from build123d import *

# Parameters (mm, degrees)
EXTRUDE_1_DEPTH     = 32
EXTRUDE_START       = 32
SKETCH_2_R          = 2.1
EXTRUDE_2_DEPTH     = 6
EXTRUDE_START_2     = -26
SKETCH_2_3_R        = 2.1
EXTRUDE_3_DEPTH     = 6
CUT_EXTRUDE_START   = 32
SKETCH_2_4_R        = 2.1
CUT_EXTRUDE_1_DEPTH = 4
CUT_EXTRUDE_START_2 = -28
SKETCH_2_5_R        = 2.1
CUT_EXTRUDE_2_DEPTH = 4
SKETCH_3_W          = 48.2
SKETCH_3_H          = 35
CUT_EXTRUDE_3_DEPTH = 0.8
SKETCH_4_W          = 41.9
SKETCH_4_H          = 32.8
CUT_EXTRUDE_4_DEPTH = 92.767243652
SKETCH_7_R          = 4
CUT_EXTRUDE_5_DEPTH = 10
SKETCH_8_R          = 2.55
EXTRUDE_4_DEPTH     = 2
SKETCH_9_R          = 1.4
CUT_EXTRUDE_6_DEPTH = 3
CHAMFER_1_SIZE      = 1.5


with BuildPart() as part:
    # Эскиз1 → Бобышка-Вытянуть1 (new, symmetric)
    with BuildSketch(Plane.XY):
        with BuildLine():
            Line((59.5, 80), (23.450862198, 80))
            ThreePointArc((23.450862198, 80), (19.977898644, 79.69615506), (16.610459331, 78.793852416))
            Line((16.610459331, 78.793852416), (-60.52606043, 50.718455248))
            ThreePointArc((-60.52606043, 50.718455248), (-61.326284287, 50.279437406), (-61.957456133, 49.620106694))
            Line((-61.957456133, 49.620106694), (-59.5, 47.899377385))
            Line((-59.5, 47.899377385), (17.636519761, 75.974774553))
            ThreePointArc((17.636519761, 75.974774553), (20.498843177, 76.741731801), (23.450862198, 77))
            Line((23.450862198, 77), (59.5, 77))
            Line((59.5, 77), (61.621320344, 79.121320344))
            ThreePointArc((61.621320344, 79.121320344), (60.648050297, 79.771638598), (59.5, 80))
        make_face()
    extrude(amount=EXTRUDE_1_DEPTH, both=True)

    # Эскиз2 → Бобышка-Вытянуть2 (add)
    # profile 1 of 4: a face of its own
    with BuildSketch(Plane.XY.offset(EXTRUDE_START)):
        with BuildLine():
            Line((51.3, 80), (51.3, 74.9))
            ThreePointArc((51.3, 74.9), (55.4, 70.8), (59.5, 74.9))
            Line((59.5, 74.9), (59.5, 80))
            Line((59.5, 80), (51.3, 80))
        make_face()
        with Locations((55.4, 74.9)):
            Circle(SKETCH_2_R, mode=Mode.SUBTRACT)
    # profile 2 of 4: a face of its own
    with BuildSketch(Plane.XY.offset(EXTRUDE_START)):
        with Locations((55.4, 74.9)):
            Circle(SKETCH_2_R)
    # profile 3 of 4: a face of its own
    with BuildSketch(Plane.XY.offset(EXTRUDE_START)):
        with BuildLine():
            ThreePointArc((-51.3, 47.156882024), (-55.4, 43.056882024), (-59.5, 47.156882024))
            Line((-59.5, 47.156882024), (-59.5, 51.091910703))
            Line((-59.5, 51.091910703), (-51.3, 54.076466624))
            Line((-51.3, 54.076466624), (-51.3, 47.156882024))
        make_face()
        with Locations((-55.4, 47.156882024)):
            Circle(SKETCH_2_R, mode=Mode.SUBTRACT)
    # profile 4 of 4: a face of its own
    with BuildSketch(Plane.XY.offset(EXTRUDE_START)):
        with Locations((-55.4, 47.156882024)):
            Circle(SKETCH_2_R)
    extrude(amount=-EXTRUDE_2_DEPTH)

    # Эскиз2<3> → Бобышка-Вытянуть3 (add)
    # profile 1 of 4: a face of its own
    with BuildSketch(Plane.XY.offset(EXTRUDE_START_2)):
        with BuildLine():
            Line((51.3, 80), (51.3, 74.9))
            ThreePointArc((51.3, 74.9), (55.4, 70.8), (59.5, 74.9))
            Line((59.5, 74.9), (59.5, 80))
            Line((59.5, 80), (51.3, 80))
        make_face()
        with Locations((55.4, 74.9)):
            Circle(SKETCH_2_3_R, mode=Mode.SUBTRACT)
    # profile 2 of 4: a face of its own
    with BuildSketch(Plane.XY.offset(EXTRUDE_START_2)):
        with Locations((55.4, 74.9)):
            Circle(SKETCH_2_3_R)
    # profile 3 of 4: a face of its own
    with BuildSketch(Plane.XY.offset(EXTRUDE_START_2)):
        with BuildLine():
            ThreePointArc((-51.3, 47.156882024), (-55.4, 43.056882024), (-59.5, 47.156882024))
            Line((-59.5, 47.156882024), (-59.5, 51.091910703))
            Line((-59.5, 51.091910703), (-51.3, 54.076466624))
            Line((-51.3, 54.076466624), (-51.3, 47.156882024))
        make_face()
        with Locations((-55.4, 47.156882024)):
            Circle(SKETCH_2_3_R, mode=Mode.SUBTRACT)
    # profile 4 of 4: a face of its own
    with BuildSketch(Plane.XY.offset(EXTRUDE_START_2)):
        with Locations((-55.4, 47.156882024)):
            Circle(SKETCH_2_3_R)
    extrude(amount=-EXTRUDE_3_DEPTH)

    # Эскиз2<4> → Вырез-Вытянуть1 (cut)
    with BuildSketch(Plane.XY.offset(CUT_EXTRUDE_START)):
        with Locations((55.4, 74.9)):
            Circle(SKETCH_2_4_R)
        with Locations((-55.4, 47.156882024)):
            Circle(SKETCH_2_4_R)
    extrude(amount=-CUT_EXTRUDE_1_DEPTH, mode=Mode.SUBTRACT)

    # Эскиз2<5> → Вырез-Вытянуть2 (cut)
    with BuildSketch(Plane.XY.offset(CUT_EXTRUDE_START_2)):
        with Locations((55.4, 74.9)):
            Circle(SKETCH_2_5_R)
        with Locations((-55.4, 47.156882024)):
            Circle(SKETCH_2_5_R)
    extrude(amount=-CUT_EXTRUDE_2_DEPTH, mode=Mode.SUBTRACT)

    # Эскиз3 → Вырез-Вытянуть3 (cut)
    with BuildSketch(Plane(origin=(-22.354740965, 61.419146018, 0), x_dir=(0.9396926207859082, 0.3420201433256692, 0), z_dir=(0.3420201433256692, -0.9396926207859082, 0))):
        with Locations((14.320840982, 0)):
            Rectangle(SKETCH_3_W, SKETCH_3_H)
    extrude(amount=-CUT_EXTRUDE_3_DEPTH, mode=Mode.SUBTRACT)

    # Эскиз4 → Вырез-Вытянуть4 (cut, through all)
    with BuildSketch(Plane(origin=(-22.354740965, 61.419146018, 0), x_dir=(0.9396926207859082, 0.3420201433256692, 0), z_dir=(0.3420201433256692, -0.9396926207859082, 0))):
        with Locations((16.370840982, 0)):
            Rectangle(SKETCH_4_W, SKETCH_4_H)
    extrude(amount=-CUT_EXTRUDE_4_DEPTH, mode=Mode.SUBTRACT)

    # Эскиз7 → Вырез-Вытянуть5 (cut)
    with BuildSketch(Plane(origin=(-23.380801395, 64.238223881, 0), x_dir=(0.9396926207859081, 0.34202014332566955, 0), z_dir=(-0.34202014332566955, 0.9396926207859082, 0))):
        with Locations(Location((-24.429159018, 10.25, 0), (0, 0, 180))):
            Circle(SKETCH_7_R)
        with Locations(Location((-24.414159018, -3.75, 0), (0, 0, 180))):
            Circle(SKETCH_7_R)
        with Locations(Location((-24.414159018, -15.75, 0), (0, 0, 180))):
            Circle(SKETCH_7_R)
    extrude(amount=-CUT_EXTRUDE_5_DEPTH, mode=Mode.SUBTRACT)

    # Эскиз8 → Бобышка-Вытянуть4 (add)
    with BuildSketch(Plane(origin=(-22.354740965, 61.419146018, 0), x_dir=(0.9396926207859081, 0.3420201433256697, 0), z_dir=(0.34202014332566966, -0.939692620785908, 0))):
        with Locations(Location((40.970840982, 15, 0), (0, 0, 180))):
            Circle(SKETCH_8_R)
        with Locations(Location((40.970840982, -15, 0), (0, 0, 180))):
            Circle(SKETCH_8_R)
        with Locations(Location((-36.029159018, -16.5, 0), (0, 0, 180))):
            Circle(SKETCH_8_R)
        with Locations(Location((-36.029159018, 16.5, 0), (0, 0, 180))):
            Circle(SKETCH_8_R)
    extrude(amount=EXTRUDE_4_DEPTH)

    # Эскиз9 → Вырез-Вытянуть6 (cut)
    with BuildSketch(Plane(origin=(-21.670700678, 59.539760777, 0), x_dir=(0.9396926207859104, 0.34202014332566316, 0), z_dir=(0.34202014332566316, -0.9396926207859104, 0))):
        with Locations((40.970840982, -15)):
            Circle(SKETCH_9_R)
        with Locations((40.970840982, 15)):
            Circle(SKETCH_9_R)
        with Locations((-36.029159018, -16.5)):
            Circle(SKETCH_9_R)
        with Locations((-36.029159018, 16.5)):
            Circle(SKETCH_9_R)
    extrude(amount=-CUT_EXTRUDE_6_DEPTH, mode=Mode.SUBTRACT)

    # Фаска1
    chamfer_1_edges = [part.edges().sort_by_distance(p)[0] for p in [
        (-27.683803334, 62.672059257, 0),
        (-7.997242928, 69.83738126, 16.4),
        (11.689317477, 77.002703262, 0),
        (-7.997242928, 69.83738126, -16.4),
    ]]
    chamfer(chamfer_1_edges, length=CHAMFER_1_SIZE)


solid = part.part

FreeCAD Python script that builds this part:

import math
import FreeCAD as App
import Part
import Sketcher

V = App.Vector
Q = App.Units.Quantity


def edges_at(feature, points):
    """Names of the edges that pass closest to the given points."""
    edges = feature.Shape.Edges
    near = lambda p: min(range(len(edges)), key=lambda i: edges[i].distToShape(Part.Vertex(*p))[0])
    return sorted({f"Edge{near(p) + 1}" for p in points})

doc = App.newDocument("Part")
params = doc.addObject("Spreadsheet::Sheet", "Params")
for row, (alias, value) in enumerate([
    ("sketch1_radius", "20 mm"),
    ("sketch1_radius2", "3 mm"),
    ("pad1_length", "64 mm"),
    ("sketch2_radius", "4.1 mm"),
    ("sketch2_height", "5.1 mm"),
    ("pad2_length", "6 mm"),
    ("sketch3_radius", "4.1 mm"),
    ("sketch3_height", "5.1 mm"),
    ("pad3_length", "6 mm"),
    ("sketch4_diameter", "4.2 mm"),
    ("pocket1_length", "4 mm"),
    ("sketch5_diameter", "4.2 mm"),
    ("pocket2_length", "4 mm"),
    ("sketch6_height", "35 mm"),
    ("sketch6_width", "48.2 mm"),
    ("pocket3_length", "0.8 mm"),
    ("sketch7_width", "41.9 mm"),
    ("sketch7_height", "32.8 mm"),
    ("sketch8_diameter", "8 mm"),
    ("pocket5_length", "10 mm"),
    ("sketch9_diameter", "5.1 mm"),
    ("pad4_length", "2 mm"),
    ("sketch10_diameter", "2.8 mm"),
    ("pocket6_length", "3 mm"),
    ("chamfer_size", "1.5 mm"),
], start=1):
    params.set(f"A{row}", alias)
    params.set(f"B{row}", "=" + value)
    params.setAlias(f"B{row}", alias)

body = doc.addObject("PartDesign::Body", "Body")

# Sketch on XY plane
sketch1 = body.newObject("Sketcher::SketchObject", "Sketch")
sketch1.AttachmentSupport = (doc.getObject("XY_Plane"), [""])
sketch1.MapMode = "FlatFace"
sketch1.addGeometry(Part.LineSegment(V(59.5, 80, 0), V(23.5, 80, 0)), False)
sketch1.addGeometry(Part.ArcOfCircle(Part.Circle(V(23.5, 60, 0), V(0, 0, 1), 20), math.radians(90), math.radians(110)), False)
sketch1.addGeometry(Part.LineSegment(V(16.6, 78.8, 0), V(-60.5, 50.7, 0)), False)
sketch1.addGeometry(Part.ArcOfCircle(Part.Circle(V(-59.5, 47.9, 0), V(0, 0, 1), 3), math.radians(110), math.radians(145)), False)
sketch1.addGeometry(Part.LineSegment(V(-62, 49.6, 0), V(-59.5, 47.9, 0)), False)
sketch1.addGeometry(Part.LineSegment(V(-59.5, 47.9, 0), V(17.6, 76, 0)), False)
sketch1.addGeometry(Part.ArcOfCircle(Part.Circle(V(23.5, 60, 0), V(0, 0, 1), 17), math.radians(90), math.radians(110)), False)
sketch1.addGeometry(Part.LineSegment(V(23.5, 77, 0), V(59.5, 77, 0)), False)
sketch1.addGeometry(Part.LineSegment(V(59.5, 77, 0), V(61.6, 79.1, 0)), False)
sketch1.addGeometry(Part.ArcOfCircle(Part.Circle(V(59.5, 77, 0), V(0, 0, 1), 3), math.radians(45), math.radians(90)), False)
sketch1.addConstraint(Sketcher.Constraint("Tangent", 0, 2, 1, 1))
sketch1.addConstraint(Sketcher.Constraint("Tangent", 1, 2, 2, 1))
sketch1.addConstraint(Sketcher.Constraint("Tangent", 2, 2, 3, 1))
sketch1.addConstraint(Sketcher.Constraint("Coincident", 3, 2, 4, 1))
sketch1.addConstraint(Sketcher.Constraint("Coincident", 4, 2, 5, 1))
sketch1.addConstraint(Sketcher.Constraint("Tangent", 5, 2, 6, 2))
sketch1.addConstraint(Sketcher.Constraint("Tangent", 6, 1, 7, 1))
sketch1.addConstraint(Sketcher.Constraint("Coincident", 7, 2, 8, 1))
sketch1.addConstraint(Sketcher.Constraint("Coincident", 8, 2, 9, 1))
sketch1.addConstraint(Sketcher.Constraint("Tangent", 9, 2, 0, 1))
sketch1.addConstraint(Sketcher.Constraint("Horizontal", 0))
sketch1.addConstraint(Sketcher.Constraint("Horizontal", 7))
sketch1.addConstraint(Sketcher.Constraint("Coincident", 6, 3, 1, 3))
sketch1.addConstraint(Sketcher.Constraint("Coincident", 4, 2, 3, 3))
sketch1.addConstraint(Sketcher.Constraint("Coincident", 7, 2, 9, 3))
sketch1.addConstraint(Sketcher.Constraint("Equal", 3, 9))
sketch1.addConstraint(Sketcher.Constraint("Radius", 1, 20.0))
sketch1.addConstraint(Sketcher.Constraint("Radius", 3, 3.0))
sketch1.addConstraint(Sketcher.Constraint("Angle", 2, Q("-160 deg")))
sketch1.addConstraint(Sketcher.Constraint("Angle", 4, Q("-35 deg")))
sketch1.addConstraint(Sketcher.Constraint("Angle", 8, Q("45 deg")))
sketch1.addConstraint(Sketcher.Constraint("DistanceY", -1, 1, 1, 3, 60.0))
sketch1.addConstraint(Sketcher.Constraint("DistanceX", 3, 3, 9, 3, 119.0))
sketch1.addConstraint(Sketcher.Constraint("DistanceX", 3, 3, -1, 1, 59.5))
sketch1.addConstraint(Sketcher.Constraint("Distance", 2, 82.08697))
sketch1.setExpression("Constraints[16]", "Params.sketch1_radius")
sketch1.setExpression("Constraints[17]", "Params.sketch1_radius2")
pad1 = body.newObject("PartDesign::Pad", "Pad")
pad1.Profile = sketch1
pad1.setExpression("Length", "Params.pad1_length")
pad1.Midplane = True

# Sketch on XY plane
sketch2 = body.newObject("Sketcher::SketchObject", "Sketch001")
sketch2.AttachmentSupport = (doc.getObject("XY_Plane"), [""])
sketch2.MapMode = "FlatFace"
sketch2.AttachmentOffset = App.Placement(V(0, 0, 32), App.Rotation())
sketch2.addGeometry(Part.LineSegment(V(51.3, 80, 0), V(51.3, 74.9, 0)), False)
sketch2.addGeometry(Part.ArcOfCircle(Part.Circle(V(55.4, 74.9, 0), V(0, 0, 1), 4.1), math.radians(180), math.radians(360)), False)
sketch2.addGeometry(Part.LineSegment(V(59.5, 74.9, 0), V(59.5, 80, 0)), False)
sketch2.addGeometry(Part.LineSegment(V(59.5, 80, 0), V(51.3, 80, 0)), False)
sketch2.addGeometry(Part.ArcOfCircle(Part.Circle(V(-55.4, 47.2, 0), V(0, 0, 1), 4.1), math.radians(180), math.radians(360)), False)
sketch2.addGeometry(Part.LineSegment(V(-51.3, 47.2, 0), V(-51.3, 54.1, 0)), False)
sketch2.addGeometry(Part.LineSegment(V(-51.3, 54.1, 0), V(-59.5, 51.1, 0)), False)
sketch2.addGeometry(Part.LineSegment(V(-59.5, 51.1, 0), V(-59.5, 47.2, 0)), False)
sketch2.addConstraint(Sketcher.Constraint("Tangent", 0, 2, 1, 1))
sketch2.addConstraint(Sketcher.Constraint("Tangent", 1, 2, 2, 1))
sketch2.addConstraint(Sketcher.Constraint("Coincident", 2, 2, 3, 1))
sketch2.addConstraint(Sketcher.Constraint("Coincident", 3, 2, 0, 1))
sketch2.addConstraint(Sketcher.Constraint("Tangent", 4, 2, 5, 1))
sketch2.addConstraint(Sketcher.Constraint("Coincident", 5, 2, 6, 1))
sketch2.addConstraint(Sketcher.Constraint("Coincident", 6, 2, 7, 1))
sketch2.addConstraint(Sketcher.Constraint("Tangent", 7, 2, 4, 1))
sketch2.addConstraint(Sketcher.Constraint("Vertical", 0))
sketch2.addConstraint(Sketcher.Constraint("Vertical", 2))
sketch2.addConstraint(Sketcher.Constraint("Horizontal", 3))
sketch2.addConstraint(Sketcher.Constraint("Vertical", 5))
sketch2.addConstraint(Sketcher.Constraint("Vertical", 7))
sketch2.addConstraint(Sketcher.Constraint("Equal", 1, 4))
sketch2.addConstraint(Sketcher.Constraint("Radius", 1, 4.1))
sketch2.addConstraint(Sketcher.Constraint("Angle", 6, Q("-160 deg")))
sketch2.addConstraint(Sketcher.Constraint("DistanceY", 0, 2, 0, 1, 5.1))
sketch2.addConstraint(Sketcher.Constraint("DistanceY", -1, 1, 2, 2, 80.0))
sketch2.addConstraint(Sketcher.Constraint("DistanceX", -1, 1, 1, 3, 55.4))
sketch2.addConstraint(Sketcher.Constraint("DistanceX", 4, 3, -1, 1, 55.4))
sketch2.addConstraint(Sketcher.Constraint("DistanceY", 7, 2, 7, 1, 3.935029))
sketch2.addConstraint(Sketcher.Constraint("DistanceY", -1, 1, 6, 2, 51.091911))
sketch2.setExpression("Constraints[14]", "Params.sketch2_radius")
sketch2.setExpression("Constraints[16]", "Params.sketch2_height")
pad2 = body.newObject("PartDesign::Pad", "Pad001")
pad2.Profile = sketch2
pad2.setExpression("Length", "Params.pad2_length")
pad2.Reversed = True

# Sketch on XY plane
sketch3 = body.newObject("Sketcher::SketchObject", "Sketch002")
sketch3.AttachmentSupport = (doc.getObject("XY_Plane"), [""])
sketch3.MapMode = "FlatFace"
sketch3.AttachmentOffset = App.Placement(V(0, 0, -26), App.Rotation())
sketch3.addGeometry(Part.LineSegment(V(51.3, 80, 0), V(51.3, 74.9, 0)), False)
sketch3.addGeometry(Part.ArcOfCircle(Part.Circle(V(55.4, 74.9, 0), V(0, 0, 1), 4.1), math.radians(180), math.radians(360)), False)
sketch3.addGeometry(Part.LineSegment(V(59.5, 74.9, 0), V(59.5, 80, 0)), False)
sketch3.addGeometry(Part.LineSegment(V(59.5, 80, 0), V(51.3, 80, 0)), False)
sketch3.addGeometry(Part.ArcOfCircle(Part.Circle(V(-55.4, 47.2, 0), V(0, 0, 1), 4.1), math.radians(180), math.radians(360)), False)
sketch3.addGeometry(Part.LineSegment(V(-51.3, 47.2, 0), V(-51.3, 54.1, 0)), False)
sketch3.addGeometry(Part.LineSegment(V(-51.3, 54.1, 0), V(-59.5, 51.1, 0)), False)
sketch3.addGeometry(Part.LineSegment(V(-59.5, 51.1, 0), V(-59.5, 47.2, 0)), False)
sketch3.addConstraint(Sketcher.Constraint("Tangent", 0, 2, 1, 1))
sketch3.addConstraint(Sketcher.Constraint("Tangent", 1, 2, 2, 1))
sketch3.addConstraint(Sketcher.Constraint("Coincident", 2, 2, 3, 1))
sketch3.addConstraint(Sketcher.Constraint("Coincident", 3, 2, 0, 1))
sketch3.addConstraint(Sketcher.Constraint("Tangent", 4, 2, 5, 1))
sketch3.addConstraint(Sketcher.Constraint("Coincident", 5, 2, 6, 1))
sketch3.addConstraint(Sketcher.Constraint("Coincident", 6, 2, 7, 1))
sketch3.addConstraint(Sketcher.Constraint("Tangent", 7, 2, 4, 1))
sketch3.addConstraint(Sketcher.Constraint("Vertical", 0))
sketch3.addConstraint(Sketcher.Constraint("Vertical", 2))
sketch3.addConstraint(Sketcher.Constraint("Horizontal", 3))
sketch3.addConstraint(Sketcher.Constraint("Vertical", 5))
sketch3.addConstraint(Sketcher.Constraint("Vertical", 7))
sketch3.addConstraint(Sketcher.Constraint("Equal", 1, 4))
sketch3.addConstraint(Sketcher.Constraint("Radius", 1, 4.1))
sketch3.addConstraint(Sketcher.Constraint("Angle", 6, Q("-160 deg")))
sketch3.addConstraint(Sketcher.Constraint("DistanceY", 0, 2, 0, 1, 5.1))
sketch3.addConstraint(Sketcher.Constraint("DistanceY", -1, 1, 2, 2, 80.0))
sketch3.addConstraint(Sketcher.Constraint("DistanceX", -1, 1, 1, 3, 55.4))
sketch3.addConstraint(Sketcher.Constraint("DistanceX", 4, 3, -1, 1, 55.4))
sketch3.addConstraint(Sketcher.Constraint("DistanceY", 7, 2, 7, 1, 3.935029))
sketch3.addConstraint(Sketcher.Constraint("DistanceY", -1, 1, 6, 2, 51.091911))
sketch3.setExpression("Constraints[14]", "Params.sketch3_radius")
sketch3.setExpression("Constraints[16]", "Params.sketch3_height")
pad3 = body.newObject("PartDesign::Pad", "Pad002")
pad3.Profile = sketch3
pad3.setExpression("Length", "Params.pad3_length")
pad3.Reversed = True

# Sketch on XY plane
sketch4 = body.newObject("Sketcher::SketchObject", "Sketch003")
sketch4.AttachmentSupport = (doc.getObject("XY_Plane"), [""])
sketch4.MapMode = "FlatFace"
sketch4.AttachmentOffset = App.Placement(V(0, 0, 32), App.Rotation())
sketch4.addGeometry(Part.Circle(V(55.4, 74.9, 0), V(0, 0, 1), 2.1), False)
sketch4.addGeometry(Part.Circle(V(-55.4, 47.2, 0), V(0, 0, 1), 2.1), False)
sketch4.addConstraint(Sketcher.Constraint("Equal", 0, 1))
sketch4.addConstraint(Sketcher.Constraint("Diameter", 0, 4.2))
sketch4.addConstraint(Sketcher.Constraint("DistanceX", -1, 1, 0, 3, 55.4))
sketch4.addConstraint(Sketcher.Constraint("DistanceY", -1, 1, 0, 3, 74.9))
sketch4.addConstraint(Sketcher.Constraint("DistanceX", 1, 3, -1, 1, 55.4))
sketch4.addConstraint(Sketcher.Constraint("DistanceY", -1, 1, 1, 3, 47.156882))
sketch4.setExpression("Constraints[1]", "Params.sketch4_diameter")
pocket1 = body.newObject("PartDesign::Pocket", "Pocket")
pocket1.Profile = sketch4
pocket1.setExpression("Length", "Params.pocket1_length")

# Sketch on XY plane
sketch5 = body.newObject("Sketcher::SketchObject", "Sketch004")
sketch5.AttachmentSupport = (doc.getObject("XY_Plane"), [""])
sketch5.MapMode = "FlatFace"
sketch5.AttachmentOffset = App.Placement(V(0, 0, -28), App.Rotation())
sketch5.addGeometry(Part.Circle(V(55.4, 74.9, 0), V(0, 0, 1), 2.1), False)
sketch5.addGeometry(Part.Circle(V(-55.4, 47.2, 0), V(0, 0, 1), 2.1), False)
sketch5.addConstraint(Sketcher.Constraint("Equal", 0, 1))
sketch5.addConstraint(Sketcher.Constraint("Diameter", 0, 4.2))
sketch5.addConstraint(Sketcher.Constraint("DistanceX", -1, 1, 0, 3, 55.4))
sketch5.addConstraint(Sketcher.Constraint("DistanceY", -1, 1, 0, 3, 74.9))
sketch5.addConstraint(Sketcher.Constraint("DistanceX", 1, 3, -1, 1, 55.4))
sketch5.addConstraint(Sketcher.Constraint("DistanceY", -1, 1, 1, 3, 47.156882))
sketch5.setExpression("Constraints[1]", "Params.sketch5_diameter")
pocket2 = body.newObject("PartDesign::Pocket", "Pocket001")
pocket2.Profile = sketch5
pocket2.setExpression("Length", "Params.pocket2_length")

# Sketch on an angled plane
sketch6 = body.newObject("Sketcher::SketchObject", "Sketch005")
sketch6.Placement = App.Placement(V(-22.354741, 61.419146, 0), App.Rotation(V(0.939692621, 0.342020143, 0), V(0, 0, 1), V(0.342020143, -0.939692621, 0), "ZXY"))
sketch6.addGeometry(Part.LineSegment(V(-10, 18, 0), V(-10, -18, 0)), False)
sketch6.addGeometry(Part.LineSegment(V(-10, -18, 0), V(38, -18, 0)), False)
sketch6.addGeometry(Part.LineSegment(V(38, -18, 0), V(38, 18, 0)), False)
sketch6.addGeometry(Part.LineSegment(V(38, 18, 0), V(-10, 18, 0)), False)
sketch6.addConstraint(Sketcher.Constraint("Coincident", 0, 2, 1, 1))
sketch6.addConstraint(Sketcher.Constraint("Coincident", 1, 2, 2, 1))
sketch6.addConstraint(Sketcher.Constraint("Coincident", 2, 2, 3, 1))
sketch6.addConstraint(Sketcher.Constraint("Coincident", 3, 2, 0, 1))
sketch6.addConstraint(Sketcher.Constraint("Vertical", 0))
sketch6.addConstraint(Sketcher.Constraint("Horizontal", 1))
sketch6.addConstraint(Sketcher.Constraint("Vertical", 2))
sketch6.addConstraint(Sketcher.Constraint("Horizontal", 3))
sketch6.addConstraint(Sketcher.Constraint("DistanceY", 0, 2, 0, 1, 35.0))
sketch6.addConstraint(Sketcher.Constraint("DistanceX", 1, 1, 1, 2, 48.2))
sketch6.addConstraint(Sketcher.Constraint("DistanceY", 0, 2, -1, 1, 17.5))
sketch6.addConstraint(Sketcher.Constraint("DistanceX", 0, 2, -1, 1, 9.779159))
sketch6.setExpression("Constraints[8]", "Params.sketch6_height")
sketch6.setExpression("Constraints[9]", "Params.sketch6_width")
pocket3 = body.newObject("PartDesign::Pocket", "Pocket002")
pocket3.Profile = sketch6
pocket3.setExpression("Length", "Params.pocket3_length")

# Sketch on an angled plane
sketch7 = body.newObject("Sketcher::SketchObject", "Sketch006")
sketch7.Placement = App.Placement(V(-22.354741, 61.419146, 0), App.Rotation(V(0.939692621, 0.342020143, 0), V(0, 0, 1), V(0.342020143, -0.939692621, 0), "ZXY"))
sketch7.addGeometry(Part.LineSegment(V(-5, 16, 0), V(-5, -16, 0)), False)
sketch7.addGeometry(Part.LineSegment(V(-5, -16, 0), V(37, -16, 0)), False)
sketch7.addGeometry(Part.LineSegment(V(37, -16, 0), V(37, 16, 0)), False)
sketch7.addGeometry(Part.LineSegment(V(37, 16, 0), V(-5, 16, 0)), False)
sketch7.addConstraint(Sketcher.Constraint("Coincident", 0, 2, 1, 1))
sketch7.addConstraint(Sketcher.Constraint("Coincident", 1, 2, 2, 1))
sketch7.addConstraint(Sketcher.Constraint("Coincident", 2, 2, 3, 1))
sketch7.addConstraint(Sketcher.Constraint("Coincident", 3, 2, 0, 1))
sketch7.addConstraint(Sketcher.Constraint("Vertical", 0))
sketch7.addConstraint(Sketcher.Constraint("Horizontal", 1))
sketch7.addConstraint(Sketcher.Constraint("Vertical", 2))
sketch7.addConstraint(Sketcher.Constraint("Horizontal", 3))
sketch7.addConstraint(Sketcher.Constraint("DistanceX", 1, 1, 1, 2, 41.9))
sketch7.addConstraint(Sketcher.Constraint("DistanceY", 0, 2, 0, 1, 32.8))
sketch7.addConstraint(Sketcher.Constraint("DistanceY", 0, 2, -1, 1, 16.4))
sketch7.addConstraint(Sketcher.Constraint("DistanceX", 0, 2, -1, 1, 4.579159))
sketch7.setExpression("Constraints[8]", "Params.sketch7_width")
sketch7.setExpression("Constraints[9]", "Params.sketch7_height")
pocket4 = body.newObject("PartDesign::Pocket", "Pocket003")
pocket4.Profile = sketch7
pocket4.Type = "ThroughAll"

# Sketch on an angled plane
sketch8 = body.newObject("Sketcher::SketchObject", "Sketch007")
sketch8.Placement = App.Placement(V(-23.380801, 64.238224, 0), App.Rotation(V(0.939692621, 0.342020143, 0), V(0, 0, -1), V(-0.342020143, 0.939692621, 0), "ZXY"))
sketch8.addGeometry(Part.Circle(V(-24.4, 10.3, 0), V(0, 0, 1), 4), False)
sketch8.addGeometry(Part.Circle(V(-24.4, -3.8, 0), V(0, 0, 1), 4), False)
sketch8.addGeometry(Part.Circle(V(-24.4, -15.8, 0), V(0, 0, 1), 4), False)
sketch8.addConstraint(Sketcher.Constraint("Equal", 0, 1))
sketch8.addConstraint(Sketcher.Constraint("Equal", 1, 2))
sketch8.addConstraint(Sketcher.Constraint("Vertical", 1, 3, 2, 3))
sketch8.addConstraint(Sketcher.Constraint("Diameter", 0, 8.0))
sketch8.addConstraint(Sketcher.Constraint("DistanceY", 1, 3, 0, 3, 14.0))
sketch8.addConstraint(Sketcher.Constraint("DistanceY", 2, 3, 1, 3, 12.0))
sketch8.addConstraint(Sketcher.Constraint("DistanceY", -1, 1, 0, 3, 10.25))
sketch8.addConstraint(Sketcher.Constraint("DistanceX", 0, 3, 1, 3, 0.015))
sketch8.addConstraint(Sketcher.Constraint("DistanceX", 0, 3, -1, 1, 24.429159))
sketch8.setExpression("Constraints[3]", "Params.sketch8_diameter")
pocket5 = body.newObject("PartDesign::Pocket", "Pocket004")
pocket5.Profile = sketch8
pocket5.setExpression("Length", "Params.pocket5_length")

# Sketch on an angled plane
sketch9 = body.newObject("Sketcher::SketchObject", "Sketch008")
sketch9.Placement = App.Placement(V(-22.354741, 61.419146, 0), App.Rotation(V(0.939692621, 0.342020143, 0), V(0, 0, 1), V(0.342020143, -0.939692621, 0), "ZXY"))
sketch9.addGeometry(Part.Circle(V(41, 15, 0), V(0, 0, 1), 2.5), False)
sketch9.addGeometry(Part.Circle(V(41, -15, 0), V(0, 0, 1), 2.5), False)
sketch9.addGeometry(Part.Circle(V(-36, -16.5, 0), V(0, 0, 1), 2.5), False)
sketch9.addGeometry(Part.Circle(V(-36, 16.5, 0), V(0, 0, 1), 2.5), False)
sketch9.addConstraint(Sketcher.Constraint("Equal", 0, 1))
sketch9.addConstraint(Sketcher.Constraint("Equal", 1, 2))
sketch9.addConstraint(Sketcher.Constraint("Equal", 2, 3))
sketch9.addConstraint(Sketcher.Constraint("Symmetric", 0, 3, 1, 3, -1))
sketch9.addConstraint(Sketcher.Constraint("Symmetric", 2, 3, 3, 3, -1))
sketch9.addConstraint(Sketcher.Constraint("Diameter", 0, 5.1))
sketch9.addConstraint(Sketcher.Constraint("DistanceY", -1, 1, 0, 3, 15.0))
sketch9.addConstraint(Sketcher.Constraint("DistanceX", 2, 3, 1, 3, 77.0))
sketch9.addConstraint(Sketcher.Constraint("DistanceY", 2, 3, 3, 3, 33.0))
sketch9.addConstraint(Sketcher.Constraint("DistanceX", -1, 1, 0, 3, 40.970841))
sketch9.setExpression("Constraints[5]", "Params.sketch9_diameter")
pad4 = body.newObject("PartDesign::Pad", "Pad003")
pad4.Profile = sketch9
pad4.setExpression("Length", "Params.pad4_length")

# Sketch on an angled plane
sketch10 = body.newObject("Sketcher::SketchObject", "Sketch009")
sketch10.Placement = App.Placement(V(-21.670701, 59.539761, 0), App.Rotation(V(0.939692621, 0.342020143, 0), V(0, 0, 1), V(0.342020143, -0.939692621, 0), "ZXY"))
sketch10.addGeometry(Part.Circle(V(41, -15, 0), V(0, 0, 1), 1.4), False)
sketch10.addGeometry(Part.Circle(V(41, 15, 0), V(0, 0, 1), 1.4), False)
sketch10.addGeometry(Part.Circle(V(-36, -16.5, 0), V(0, 0, 1), 1.4), False)
sketch10.addGeometry(Part.Circle(V(-36, 16.5, 0), V(0, 0, 1), 1.4), False)
sketch10.addConstraint(Sketcher.Constraint("Equal", 0, 1))
sketch10.addConstraint(Sketcher.Constraint("Equal", 1, 2))
sketch10.addConstraint(Sketcher.Constraint("Equal", 2, 3))
sketch10.addConstraint(Sketcher.Constraint("Symmetric", 0, 3, 1, 3, -1))
sketch10.addConstraint(Sketcher.Constraint("Symmetric", 2, 3, 3, 3, -1))
sketch10.addConstraint(Sketcher.Constraint("Diameter", 0, 2.8))
sketch10.addConstraint(Sketcher.Constraint("DistanceY", 0, 3, -1, 1, 15.0))
sketch10.addConstraint(Sketcher.Constraint("DistanceX", 2, 3, 0, 3, 77.0))
sketch10.addConstraint(Sketcher.Constraint("DistanceY", 2, 3, 3, 3, 33.0))
sketch10.addConstraint(Sketcher.Constraint("DistanceX", -1, 1, 0, 3, 40.970841))
sketch10.setExpression("Constraints[5]", "Params.sketch10_diameter")
pocket6 = body.newObject("PartDesign::Pocket", "Pocket005")
pocket6.Profile = sketch10
pocket6.setExpression("Length", "Params.pocket6_length")
doc.recompute()

chamfer = body.newObject("PartDesign::Chamfer", "Chamfer")
chamfer.Base = (pocket6, edges_at(pocket6, [
    (-27.684, 62.672, 0),
    (-7.997, 69.837, 16.4),
    (11.689, 77.003, 0),
    (-7.997, 69.837, -16.4),
]))
chamfer.setExpression("Size", "Params.chamfer_size")

doc.recompute()
